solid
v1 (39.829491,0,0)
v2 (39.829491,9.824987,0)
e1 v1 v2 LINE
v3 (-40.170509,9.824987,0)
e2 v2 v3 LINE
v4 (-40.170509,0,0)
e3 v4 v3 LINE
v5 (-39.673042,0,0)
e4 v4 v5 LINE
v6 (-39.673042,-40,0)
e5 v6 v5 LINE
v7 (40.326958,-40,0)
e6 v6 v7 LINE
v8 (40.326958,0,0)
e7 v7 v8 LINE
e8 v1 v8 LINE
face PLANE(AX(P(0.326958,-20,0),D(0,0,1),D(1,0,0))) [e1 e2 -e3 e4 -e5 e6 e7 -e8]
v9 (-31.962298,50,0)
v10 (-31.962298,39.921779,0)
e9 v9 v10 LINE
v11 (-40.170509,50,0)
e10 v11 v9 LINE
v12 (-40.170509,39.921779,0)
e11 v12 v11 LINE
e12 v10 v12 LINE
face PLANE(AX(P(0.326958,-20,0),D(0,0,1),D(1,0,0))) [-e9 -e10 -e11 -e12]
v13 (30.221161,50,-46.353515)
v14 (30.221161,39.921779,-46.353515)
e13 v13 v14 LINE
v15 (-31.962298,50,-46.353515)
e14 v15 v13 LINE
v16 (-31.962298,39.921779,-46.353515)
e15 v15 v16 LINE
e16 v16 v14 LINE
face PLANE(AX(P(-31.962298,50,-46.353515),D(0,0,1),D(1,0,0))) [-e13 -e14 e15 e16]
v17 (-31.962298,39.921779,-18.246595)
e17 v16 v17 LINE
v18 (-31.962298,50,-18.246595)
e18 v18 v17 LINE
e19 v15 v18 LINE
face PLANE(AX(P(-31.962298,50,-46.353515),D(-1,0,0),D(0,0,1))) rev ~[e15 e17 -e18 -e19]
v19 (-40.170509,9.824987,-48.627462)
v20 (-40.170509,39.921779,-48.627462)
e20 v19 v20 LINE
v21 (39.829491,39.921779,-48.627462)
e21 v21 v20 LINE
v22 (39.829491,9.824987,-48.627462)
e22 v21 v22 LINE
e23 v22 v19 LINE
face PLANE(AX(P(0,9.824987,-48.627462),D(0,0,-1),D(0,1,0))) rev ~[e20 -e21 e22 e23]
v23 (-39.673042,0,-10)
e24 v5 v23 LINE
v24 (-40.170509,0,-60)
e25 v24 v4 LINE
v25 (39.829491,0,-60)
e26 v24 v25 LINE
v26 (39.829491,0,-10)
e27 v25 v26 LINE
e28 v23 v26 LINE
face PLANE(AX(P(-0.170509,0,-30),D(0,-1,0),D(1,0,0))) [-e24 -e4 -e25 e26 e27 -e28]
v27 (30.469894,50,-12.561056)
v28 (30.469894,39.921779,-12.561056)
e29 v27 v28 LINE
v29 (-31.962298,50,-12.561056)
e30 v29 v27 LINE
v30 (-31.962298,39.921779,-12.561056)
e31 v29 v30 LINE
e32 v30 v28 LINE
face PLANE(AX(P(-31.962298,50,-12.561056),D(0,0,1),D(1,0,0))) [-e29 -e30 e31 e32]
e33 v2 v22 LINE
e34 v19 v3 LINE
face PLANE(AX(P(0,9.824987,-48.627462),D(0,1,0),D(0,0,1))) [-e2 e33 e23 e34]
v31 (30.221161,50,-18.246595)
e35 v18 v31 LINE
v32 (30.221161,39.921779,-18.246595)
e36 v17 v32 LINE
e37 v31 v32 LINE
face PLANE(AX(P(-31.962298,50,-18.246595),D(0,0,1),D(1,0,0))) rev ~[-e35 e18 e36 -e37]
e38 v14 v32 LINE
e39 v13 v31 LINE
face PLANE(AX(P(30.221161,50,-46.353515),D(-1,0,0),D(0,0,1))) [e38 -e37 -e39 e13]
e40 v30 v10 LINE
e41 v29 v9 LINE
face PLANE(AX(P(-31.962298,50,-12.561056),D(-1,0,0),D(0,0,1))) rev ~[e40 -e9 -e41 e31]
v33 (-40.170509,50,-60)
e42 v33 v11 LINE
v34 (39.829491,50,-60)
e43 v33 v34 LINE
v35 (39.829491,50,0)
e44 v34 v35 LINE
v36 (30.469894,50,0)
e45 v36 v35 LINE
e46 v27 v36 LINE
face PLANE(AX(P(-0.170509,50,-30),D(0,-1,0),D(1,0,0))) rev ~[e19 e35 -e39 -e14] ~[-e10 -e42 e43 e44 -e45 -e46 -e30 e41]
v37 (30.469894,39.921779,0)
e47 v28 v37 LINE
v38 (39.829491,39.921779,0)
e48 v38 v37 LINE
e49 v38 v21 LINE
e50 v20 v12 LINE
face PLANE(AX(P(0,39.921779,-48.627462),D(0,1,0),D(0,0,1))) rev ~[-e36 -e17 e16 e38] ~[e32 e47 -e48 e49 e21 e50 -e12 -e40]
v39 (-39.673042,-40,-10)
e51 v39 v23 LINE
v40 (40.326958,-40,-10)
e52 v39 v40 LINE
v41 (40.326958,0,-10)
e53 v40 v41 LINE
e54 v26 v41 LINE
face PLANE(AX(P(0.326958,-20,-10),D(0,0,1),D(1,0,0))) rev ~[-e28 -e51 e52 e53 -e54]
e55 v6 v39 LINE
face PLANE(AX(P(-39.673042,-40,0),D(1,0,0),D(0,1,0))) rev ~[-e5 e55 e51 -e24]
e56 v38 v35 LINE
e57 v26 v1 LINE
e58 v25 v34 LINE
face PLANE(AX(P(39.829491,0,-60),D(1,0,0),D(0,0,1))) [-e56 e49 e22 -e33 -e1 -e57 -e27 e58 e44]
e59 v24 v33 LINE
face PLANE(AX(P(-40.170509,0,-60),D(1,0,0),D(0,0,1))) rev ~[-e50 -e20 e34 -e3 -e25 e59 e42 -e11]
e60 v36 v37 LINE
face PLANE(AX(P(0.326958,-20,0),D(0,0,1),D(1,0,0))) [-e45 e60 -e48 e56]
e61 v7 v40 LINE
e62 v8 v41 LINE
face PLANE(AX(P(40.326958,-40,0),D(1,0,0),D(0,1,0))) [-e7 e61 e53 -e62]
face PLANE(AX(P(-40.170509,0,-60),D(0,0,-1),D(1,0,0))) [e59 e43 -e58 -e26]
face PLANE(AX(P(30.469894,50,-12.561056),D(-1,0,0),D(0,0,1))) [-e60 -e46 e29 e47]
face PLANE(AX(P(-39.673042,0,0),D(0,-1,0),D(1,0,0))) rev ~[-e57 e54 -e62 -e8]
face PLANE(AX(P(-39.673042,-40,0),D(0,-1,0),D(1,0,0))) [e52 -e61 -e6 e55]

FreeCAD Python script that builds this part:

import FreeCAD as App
import Part
import Sketcher
from FreeCAD import Vector

doc = App.newDocument("Part")
params = doc.addObject("Spreadsheet::Sheet", "Params")
for row, (alias, value) in enumerate([
    ("sketch1_width", "80 mm"),
    ("sketch1_height", "60 mm"),
    ("pad1_length", "50 mm"),
    ("sketch2_width", "80 mm"),
    ("sketch2_height", "40 mm"),
    ("pad2_length", "10 mm"),
    ("pocket2_length", "25 mm"),
], start=1):
    params.set(f"A{row}", alias)
    params.set(f"B{row}", "=" + value)
    params.setAlias(f"B{row}", alias)

body = doc.addObject("PartDesign::Body", "Body")

sketch1 = body.newObject("Sketcher::SketchObject", "Sketch")
sketch1.AttachmentSupport = (doc.getObject("XZ_Plane"), [""])
sketch1.MapMode = "FlatFace"
sketch1.addGeometry([
    Part.LineSegment(Vector(-40, 0, 0), Vector(-40, -60, 0)),
    Part.LineSegment(Vector(-40, -60, 0), Vector(40, -60, 0)),
    Part.LineSegment(Vector(40, -60, 0), Vector(40, 0, 0)),
    Part.LineSegment(Vector(40, 0, 0), Vector(-40, 0, 0)),
], False)
sketch1.addConstraint([
    Sketcher.Constraint("Coincident", 0, 2, 1, 1),
    Sketcher.Constraint("Coincident", 1, 2, 2, 1),
    Sketcher.Constraint("Coincident", 2, 2, 3, 1),
    Sketcher.Constraint("Coincident", 3, 2, 0, 1),
    Sketcher.Constraint("Vertical", 0),
    Sketcher.Constraint("Horizontal", 1),
    Sketcher.Constraint("Vertical", 2),
    Sketcher.Constraint("Horizontal", 3),
    Sketcher.Constraint("PointOnObject", 2, 2, -1),
    Sketcher.Constraint("DistanceX", 1, 1, 1, 2, 80.0),
    Sketcher.Constraint("DistanceY", 0, 2, 0, 1, 60.0),
    Sketcher.Constraint("DistanceX", 0, 2, -1, 1, 40.170509),
])
sketch1.setExpression("Constraints[9]", "Params.sketch1_width")
sketch1.setExpression("Constraints[10]", "Params.sketch1_height")
pad1 = body.newObject("PartDesign::Pad", "Pad")
pad1.Profile = sketch1
pad1.setExpression("Length", "Params.pad1_length")
pad1.Reversed = True

sketch2 = body.newObject("Sketcher::SketchObject", "Sketch001")
sketch2.AttachmentSupport = (doc.getObject("XY_Plane"), [""])
sketch2.MapMode = "FlatFace"
sketch2.addGeometry([
    Part.LineSegment(Vector(-40, 0, 0), Vector(-40, -40, 0)),
    Part.LineSegment(Vector(-40, -40, 0), Vector(40, -40, 0)),
    Part.LineSegment(Vector(40, -40, 0), Vector(40, 0, 0)),
    Part.LineSegment(Vector(40, 0, 0), Vector(-40, 0, 0)),
], False)
sketch2.addConstraint([
    Sketcher.Constraint("Coincident", 0, 2, 1, 1),
    Sketcher.Constraint("Coincident", 1, 2, 2, 1),
    Sketcher.Constraint("Coincident", 2, 2, 3, 1),
    Sketcher.Constraint("Coincident", 3, 2, 0, 1),
    Sketcher.Constraint("Vertical", 0),
    Sketcher.Constraint("Horizontal", 1),
    Sketcher.Constraint("Vertical", 2),
    Sketcher.Constraint("Horizontal", 3),
    Sketcher.Constraint("PointOnObject", 2, 2, -1),
    Sketcher.Constraint("DistanceX", 1, 1, 1, 2, 80.0),
    Sketcher.Constraint("DistanceY", 0, 2, 0, 1, 40.0),
    Sketcher.Constraint("DistanceX", 0, 2, -1, 1, 39.673042),
])
sketch2.setExpression("Constraints[9]", "Params.sketch2_width")
sketch2.setExpression("Constraints[10]", "Params.sketch2_height")
pad2 = body.newObject("PartDesign::Pad", "Pad001")
pad2.Profile = sketch2
pad2.setExpression("Length", "Params.pad2_length")
pad2.Reversed = True

sketch3 = body.newObject("Sketcher::SketchObject", "Sketch002")
sketch3.AttachmentSupport = (doc.getObject("YZ_Plane"), [""])
sketch3.MapMode = "FlatFace"
sketch3.addGeometry([
    Part.LineSegment(Vector(10, 29, 0), Vector(10, -49, 0)),
    Part.LineSegment(Vector(10, -49, 0), Vector(40, -49, 0)),
    Part.LineSegment(Vector(40, -49, 0), Vector(40, 29, 0)),
    Part.LineSegment(Vector(40, 29, 0), Vector(10, 29, 0)),
], False)
sketch3.addConstraint([
    Sketcher.Constraint("Coincident", 0, 2, 1, 1),
    Sketcher.Constraint("Coincident", 1, 2, 2, 1),
    Sketcher.Constraint("Coincident", 2, 2, 3, 1),
    Sketcher.Constraint("Coincident", 3, 2, 0, 1),
    Sketcher.Constraint("Vertical", 0),
    Sketcher.Constraint("Horizontal", 1),
    Sketcher.Constraint("Vertical", 2),
    Sketcher.Constraint("Horizontal", 3),
    Sketcher.Constraint("DistanceX", 1, 1, 1, 2, 30.096793),
    Sketcher.Constraint("DistanceY", 0, 2, 0, 1, 78.102423),
    Sketcher.Constraint("DistanceX", -1, 1, 1, 2, 39.921779),
    Sketcher.Constraint("DistanceY", -1, 1, 2, 2, 29.474961),
])
pocket1 = body.newObject("PartDesign::Pocket", "Pocket")
pocket1.Profile = sketch3
pocket1.Type = "ThroughAll"
pocket1.Midplane = True

sketch4 = body.newObject("Sketcher::SketchObject", "Sketch003")
sketch4.AttachmentSupport = (doc.getObject("XZ_Plane"), [""])
sketch4.MapMode = "FlatFace"
sketch4.AttachmentOffset = App.Placement(Vector(0, 0, -50), App.Rotation())
sketch4.addGeometry([
    Part.LineSegment(Vector(-32, 18, 0), Vector(-32, -13, 0)),
    Part.LineSegment(Vector(-32, -13, 0), Vector(30, -13, 0)),
    Part.LineSegment(Vector(30, -13, 0), Vector(30, 18, 0)),
    Part.LineSegment(Vector(30, 18, 0), Vector(-32, 18, 0)),
    Part.LineSegment(Vector(-32, -18, 0), Vector(-32, -46, 0)),
    Part.LineSegment(Vector(-32, -46, 0), Vector(30, -46, 0)),
    Part.LineSegment(Vector(30, -46, 0), Vector(30, -18, 0)),
    Part.LineSegment(Vector(30, -18, 0), Vector(-32, -18, 0)),
], False)
sketch4.addConstraint([
    Sketcher.Constraint("Coincident", 0, 2, 1, 1),
    Sketcher.Constraint("Coincident", 1, 2, 2, 1),
    Sketcher.Constraint("Coincident", 2, 2, 3, 1),
    Sketcher.Constraint("Coincident", 3, 2, 0, 1),
    Sketcher.Constraint("Coincident", 4, 2, 5, 1),
    Sketcher.Constraint("Coincident", 5, 2, 6, 1),
    Sketcher.Constraint("Coincident", 6, 2, 7, 1),
    Sketcher.Constraint("Coincident", 7, 2, 4, 1),
    Sketcher.Constraint("Vertical", 0),
    Sketcher.Constraint("Horizontal", 1),
    Sketcher.Constraint("Vertical", 2),
    Sketcher.Constraint("Horizontal", 3),
    Sketcher.Constraint("Vertical", 4),
    Sketcher.Constraint("Horizontal", 5),
    Sketcher.Constraint("Vertical", 6),
    Sketcher.Constraint("Horizontal", 7),
    Sketcher.Constraint("Vertical", 3, 2, 4, 2),
    Sketcher.Constraint("DistanceX", 5, 1, 5, 2, 62.183458),
    Sketcher.Constraint("DistanceY", 4, 2, 4, 1, 28.10692),
    Sketcher.Constraint("DistanceX", 1, 1, 1, 2, 62.432192),
    Sketcher.Constraint("DistanceY", 0, 2, 0, 1, 30.842992),
    Sketcher.Constraint("DistanceX", -1, 1, 5, 2, 30.221161),
    Sketcher.Constraint("DistanceY", 4, 2, 0, 2, 33.792459),
    Sketcher.Constraint("DistanceY", 0, 2, -1, 1, 12.561056),
])
pocket2 = body.newObject("PartDesign::Pocket", "Pocket001")
pocket2.Profile = sketch4
pocket2.setExpression("Length", "Params.pocket2_length")
pocket2.Reversed = True

doc.recompute()
